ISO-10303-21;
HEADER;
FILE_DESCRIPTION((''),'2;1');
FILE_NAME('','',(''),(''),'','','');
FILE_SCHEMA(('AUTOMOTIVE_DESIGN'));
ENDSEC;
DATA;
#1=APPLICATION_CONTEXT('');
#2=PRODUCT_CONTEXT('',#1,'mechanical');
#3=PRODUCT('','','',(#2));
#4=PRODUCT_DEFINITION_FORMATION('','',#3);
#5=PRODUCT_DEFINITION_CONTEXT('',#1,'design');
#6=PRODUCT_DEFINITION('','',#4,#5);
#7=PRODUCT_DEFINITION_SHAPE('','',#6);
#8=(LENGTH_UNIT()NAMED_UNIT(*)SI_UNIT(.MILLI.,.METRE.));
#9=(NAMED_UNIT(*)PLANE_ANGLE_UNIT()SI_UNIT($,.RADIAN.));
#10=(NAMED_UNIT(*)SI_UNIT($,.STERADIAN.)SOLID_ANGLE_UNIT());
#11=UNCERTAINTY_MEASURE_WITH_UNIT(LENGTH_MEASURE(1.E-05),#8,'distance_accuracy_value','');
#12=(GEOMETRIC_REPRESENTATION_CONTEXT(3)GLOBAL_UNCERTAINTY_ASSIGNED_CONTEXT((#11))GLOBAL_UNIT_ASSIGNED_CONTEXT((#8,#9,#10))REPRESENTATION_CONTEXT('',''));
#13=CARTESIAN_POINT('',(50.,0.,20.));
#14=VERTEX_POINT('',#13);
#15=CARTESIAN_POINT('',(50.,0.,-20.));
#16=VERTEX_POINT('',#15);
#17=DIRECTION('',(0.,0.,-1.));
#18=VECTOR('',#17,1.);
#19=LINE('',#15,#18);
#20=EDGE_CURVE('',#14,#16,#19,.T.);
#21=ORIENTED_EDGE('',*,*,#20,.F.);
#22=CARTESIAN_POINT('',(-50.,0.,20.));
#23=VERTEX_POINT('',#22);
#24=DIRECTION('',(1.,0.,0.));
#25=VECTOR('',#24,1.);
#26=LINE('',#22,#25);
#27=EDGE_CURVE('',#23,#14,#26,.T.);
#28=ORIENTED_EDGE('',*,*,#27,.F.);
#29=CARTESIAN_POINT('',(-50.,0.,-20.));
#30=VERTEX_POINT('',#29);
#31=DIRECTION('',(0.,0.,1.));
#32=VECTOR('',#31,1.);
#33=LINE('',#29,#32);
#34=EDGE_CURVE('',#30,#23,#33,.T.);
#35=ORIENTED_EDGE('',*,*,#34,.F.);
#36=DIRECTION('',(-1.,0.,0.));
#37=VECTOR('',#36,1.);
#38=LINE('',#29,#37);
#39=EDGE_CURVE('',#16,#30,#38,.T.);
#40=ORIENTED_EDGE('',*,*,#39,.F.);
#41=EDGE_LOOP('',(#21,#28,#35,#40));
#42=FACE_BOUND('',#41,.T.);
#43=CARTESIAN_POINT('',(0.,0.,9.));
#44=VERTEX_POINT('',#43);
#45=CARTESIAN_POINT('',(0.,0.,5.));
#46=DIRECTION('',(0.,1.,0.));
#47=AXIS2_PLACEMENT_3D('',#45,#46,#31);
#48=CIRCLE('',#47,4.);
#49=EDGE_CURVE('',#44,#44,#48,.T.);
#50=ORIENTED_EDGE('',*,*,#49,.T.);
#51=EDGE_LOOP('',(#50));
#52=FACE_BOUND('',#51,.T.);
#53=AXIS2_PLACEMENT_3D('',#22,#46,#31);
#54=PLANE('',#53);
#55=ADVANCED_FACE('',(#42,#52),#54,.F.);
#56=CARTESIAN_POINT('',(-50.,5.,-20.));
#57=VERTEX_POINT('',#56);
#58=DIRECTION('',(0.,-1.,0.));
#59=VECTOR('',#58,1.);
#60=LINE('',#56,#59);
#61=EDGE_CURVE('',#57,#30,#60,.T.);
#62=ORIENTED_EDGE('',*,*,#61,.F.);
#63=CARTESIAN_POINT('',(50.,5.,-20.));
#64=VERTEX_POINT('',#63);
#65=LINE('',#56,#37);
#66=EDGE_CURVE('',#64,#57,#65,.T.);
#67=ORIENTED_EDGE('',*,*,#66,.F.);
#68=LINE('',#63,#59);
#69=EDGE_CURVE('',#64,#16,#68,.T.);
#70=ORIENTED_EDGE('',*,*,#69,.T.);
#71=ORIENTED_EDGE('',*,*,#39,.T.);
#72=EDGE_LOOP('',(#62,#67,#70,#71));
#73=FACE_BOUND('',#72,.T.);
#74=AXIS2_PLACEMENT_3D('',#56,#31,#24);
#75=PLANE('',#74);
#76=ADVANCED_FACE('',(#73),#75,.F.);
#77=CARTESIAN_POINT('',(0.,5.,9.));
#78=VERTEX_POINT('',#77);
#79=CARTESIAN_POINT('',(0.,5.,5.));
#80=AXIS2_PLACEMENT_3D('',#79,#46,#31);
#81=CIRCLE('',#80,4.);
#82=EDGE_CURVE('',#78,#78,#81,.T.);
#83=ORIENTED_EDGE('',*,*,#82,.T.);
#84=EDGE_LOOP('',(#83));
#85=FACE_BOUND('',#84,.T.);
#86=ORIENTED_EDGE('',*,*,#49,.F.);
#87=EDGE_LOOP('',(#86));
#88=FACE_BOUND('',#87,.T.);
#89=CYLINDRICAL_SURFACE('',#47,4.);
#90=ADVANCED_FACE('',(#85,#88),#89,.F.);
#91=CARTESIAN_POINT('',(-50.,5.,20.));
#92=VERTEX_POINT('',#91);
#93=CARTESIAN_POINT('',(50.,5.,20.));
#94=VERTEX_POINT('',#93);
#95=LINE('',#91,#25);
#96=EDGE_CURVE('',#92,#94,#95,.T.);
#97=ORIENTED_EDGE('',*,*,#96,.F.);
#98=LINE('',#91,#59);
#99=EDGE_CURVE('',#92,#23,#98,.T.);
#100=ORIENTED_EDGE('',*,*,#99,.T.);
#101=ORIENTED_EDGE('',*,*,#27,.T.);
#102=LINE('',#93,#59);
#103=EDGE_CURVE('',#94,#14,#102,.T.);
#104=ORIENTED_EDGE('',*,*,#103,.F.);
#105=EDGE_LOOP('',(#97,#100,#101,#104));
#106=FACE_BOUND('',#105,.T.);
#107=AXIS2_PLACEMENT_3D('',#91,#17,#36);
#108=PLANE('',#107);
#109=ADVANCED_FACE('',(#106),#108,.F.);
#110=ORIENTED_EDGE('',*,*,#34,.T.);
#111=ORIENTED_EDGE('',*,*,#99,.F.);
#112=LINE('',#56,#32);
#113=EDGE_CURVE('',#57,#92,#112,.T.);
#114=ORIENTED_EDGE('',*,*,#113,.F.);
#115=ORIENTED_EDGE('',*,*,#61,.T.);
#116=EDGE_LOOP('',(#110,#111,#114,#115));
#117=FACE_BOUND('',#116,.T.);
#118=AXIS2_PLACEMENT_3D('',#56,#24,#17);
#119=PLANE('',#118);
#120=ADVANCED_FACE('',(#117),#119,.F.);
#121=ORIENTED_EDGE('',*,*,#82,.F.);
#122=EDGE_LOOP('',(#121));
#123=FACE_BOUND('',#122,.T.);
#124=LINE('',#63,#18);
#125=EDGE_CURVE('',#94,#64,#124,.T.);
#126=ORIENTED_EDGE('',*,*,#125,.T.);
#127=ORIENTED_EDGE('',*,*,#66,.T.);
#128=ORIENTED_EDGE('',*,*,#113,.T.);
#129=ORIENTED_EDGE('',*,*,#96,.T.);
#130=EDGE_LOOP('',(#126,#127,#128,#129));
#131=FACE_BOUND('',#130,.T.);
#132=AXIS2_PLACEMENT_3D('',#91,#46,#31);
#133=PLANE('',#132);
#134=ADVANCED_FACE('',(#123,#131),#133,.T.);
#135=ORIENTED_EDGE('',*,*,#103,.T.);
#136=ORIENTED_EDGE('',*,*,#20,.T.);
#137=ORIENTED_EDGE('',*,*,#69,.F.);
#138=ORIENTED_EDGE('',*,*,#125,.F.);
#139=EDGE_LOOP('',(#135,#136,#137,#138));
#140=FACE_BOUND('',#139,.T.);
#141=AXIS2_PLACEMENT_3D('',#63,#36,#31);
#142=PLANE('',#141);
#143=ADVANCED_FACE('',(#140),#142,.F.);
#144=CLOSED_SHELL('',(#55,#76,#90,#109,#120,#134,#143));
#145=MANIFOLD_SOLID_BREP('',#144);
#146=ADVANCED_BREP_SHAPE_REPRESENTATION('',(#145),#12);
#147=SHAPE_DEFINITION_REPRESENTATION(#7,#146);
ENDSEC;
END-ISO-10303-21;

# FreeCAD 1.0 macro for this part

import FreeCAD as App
import Part
import Sketcher
from FreeCAD import Vector

doc = App.newDocument("Part")
body = doc.addObject("PartDesign::Body", "Body")

# Sketch on XZ plane
sketch1 = body.newObject("Sketcher::SketchObject", "Sketch")
sketch1.AttachmentSupport = (doc.getObject("XZ_Plane"), [""])
sketch1.MapMode = "FlatFace"
sketch1.addGeometry(Part.LineSegment(Vector(-50, -20, 0), Vector(-50, 20, 0)), False)
sketch1.addGeometry(Part.LineSegment(Vector(-50, 20, 0), Vector(50, 20, 0)), False)
sketch1.addGeometry(Part.LineSegment(Vector(50, 20, 0), Vector(50, -20, 0)), False)
sketch1.addGeometry(Part.LineSegment(Vector(50, -20, 0), Vector(-50, -20, 0)), False)
sketch1.addConstraint(Sketcher.Constraint("Coincident", 0, 2, 1, 1))
sketch1.addConstraint(Sketcher.Constraint("Coincident", 1, 2, 2, 1))
sketch1.addConstraint(Sketcher.Constraint("Coincident", 2, 2, 3, 1))
sketch1.addConstraint(Sketcher.Constraint("Coincident", 3, 2, 0, 1))
sketch1.addConstraint(Sketcher.Constraint("Vertical", 0))
sketch1.addConstraint(Sketcher.Constraint("Horizontal", 1))
sketch1.addConstraint(Sketcher.Constraint("Vertical", 2))
sketch1.addConstraint(Sketcher.Constraint("Horizontal", 3))
sketch1.addConstraint(Sketcher.Constraint("Symmetric", 0, 2, 2, 2, -1, 1))
sketch1.addConstraint(Sketcher.Constraint("DistanceX", 1, 1, 1, 2, 100.0))
sketch1.addConstraint(Sketcher.Constraint("DistanceY", 0, 1, 0, 2, 40.0))
pad1 = body.newObject("PartDesign::Pad", "Pad")
pad1.Profile = sketch1
pad1.Length = 5
pad1.Reversed = True

# Sketch on XZ plane
sketch2 = body.newObject("Sketcher::SketchObject", "Sketch001")
sketch2.AttachmentSupport = (doc.getObject("XZ_Plane"), [""])
sketch2.MapMode = "FlatFace"
sketch2.AttachmentOffset = App.Placement(Vector(0, 0, -5), App.Rotation())
sketch2.addGeometry(Part.Circle(Vector(0, 5, 0), Vector(0, 0, 1), 4), False)
sketch2.addConstraint(Sketcher.Constraint("PointOnObject", 0, 3, -2))
sketch2.addConstraint(Sketcher.Constraint("Diameter", 0, 8.0))
sketch2.addConstraint(Sketcher.Constraint("DistanceY", -1, 1, 0, 3, 5.0))
pocket1 = body.newObject("PartDesign::Pocket", "Pocket")
pocket1.Profile = sketch2
pocket1.Length = 5
pocket1.Reversed = True

doc.recompute()
